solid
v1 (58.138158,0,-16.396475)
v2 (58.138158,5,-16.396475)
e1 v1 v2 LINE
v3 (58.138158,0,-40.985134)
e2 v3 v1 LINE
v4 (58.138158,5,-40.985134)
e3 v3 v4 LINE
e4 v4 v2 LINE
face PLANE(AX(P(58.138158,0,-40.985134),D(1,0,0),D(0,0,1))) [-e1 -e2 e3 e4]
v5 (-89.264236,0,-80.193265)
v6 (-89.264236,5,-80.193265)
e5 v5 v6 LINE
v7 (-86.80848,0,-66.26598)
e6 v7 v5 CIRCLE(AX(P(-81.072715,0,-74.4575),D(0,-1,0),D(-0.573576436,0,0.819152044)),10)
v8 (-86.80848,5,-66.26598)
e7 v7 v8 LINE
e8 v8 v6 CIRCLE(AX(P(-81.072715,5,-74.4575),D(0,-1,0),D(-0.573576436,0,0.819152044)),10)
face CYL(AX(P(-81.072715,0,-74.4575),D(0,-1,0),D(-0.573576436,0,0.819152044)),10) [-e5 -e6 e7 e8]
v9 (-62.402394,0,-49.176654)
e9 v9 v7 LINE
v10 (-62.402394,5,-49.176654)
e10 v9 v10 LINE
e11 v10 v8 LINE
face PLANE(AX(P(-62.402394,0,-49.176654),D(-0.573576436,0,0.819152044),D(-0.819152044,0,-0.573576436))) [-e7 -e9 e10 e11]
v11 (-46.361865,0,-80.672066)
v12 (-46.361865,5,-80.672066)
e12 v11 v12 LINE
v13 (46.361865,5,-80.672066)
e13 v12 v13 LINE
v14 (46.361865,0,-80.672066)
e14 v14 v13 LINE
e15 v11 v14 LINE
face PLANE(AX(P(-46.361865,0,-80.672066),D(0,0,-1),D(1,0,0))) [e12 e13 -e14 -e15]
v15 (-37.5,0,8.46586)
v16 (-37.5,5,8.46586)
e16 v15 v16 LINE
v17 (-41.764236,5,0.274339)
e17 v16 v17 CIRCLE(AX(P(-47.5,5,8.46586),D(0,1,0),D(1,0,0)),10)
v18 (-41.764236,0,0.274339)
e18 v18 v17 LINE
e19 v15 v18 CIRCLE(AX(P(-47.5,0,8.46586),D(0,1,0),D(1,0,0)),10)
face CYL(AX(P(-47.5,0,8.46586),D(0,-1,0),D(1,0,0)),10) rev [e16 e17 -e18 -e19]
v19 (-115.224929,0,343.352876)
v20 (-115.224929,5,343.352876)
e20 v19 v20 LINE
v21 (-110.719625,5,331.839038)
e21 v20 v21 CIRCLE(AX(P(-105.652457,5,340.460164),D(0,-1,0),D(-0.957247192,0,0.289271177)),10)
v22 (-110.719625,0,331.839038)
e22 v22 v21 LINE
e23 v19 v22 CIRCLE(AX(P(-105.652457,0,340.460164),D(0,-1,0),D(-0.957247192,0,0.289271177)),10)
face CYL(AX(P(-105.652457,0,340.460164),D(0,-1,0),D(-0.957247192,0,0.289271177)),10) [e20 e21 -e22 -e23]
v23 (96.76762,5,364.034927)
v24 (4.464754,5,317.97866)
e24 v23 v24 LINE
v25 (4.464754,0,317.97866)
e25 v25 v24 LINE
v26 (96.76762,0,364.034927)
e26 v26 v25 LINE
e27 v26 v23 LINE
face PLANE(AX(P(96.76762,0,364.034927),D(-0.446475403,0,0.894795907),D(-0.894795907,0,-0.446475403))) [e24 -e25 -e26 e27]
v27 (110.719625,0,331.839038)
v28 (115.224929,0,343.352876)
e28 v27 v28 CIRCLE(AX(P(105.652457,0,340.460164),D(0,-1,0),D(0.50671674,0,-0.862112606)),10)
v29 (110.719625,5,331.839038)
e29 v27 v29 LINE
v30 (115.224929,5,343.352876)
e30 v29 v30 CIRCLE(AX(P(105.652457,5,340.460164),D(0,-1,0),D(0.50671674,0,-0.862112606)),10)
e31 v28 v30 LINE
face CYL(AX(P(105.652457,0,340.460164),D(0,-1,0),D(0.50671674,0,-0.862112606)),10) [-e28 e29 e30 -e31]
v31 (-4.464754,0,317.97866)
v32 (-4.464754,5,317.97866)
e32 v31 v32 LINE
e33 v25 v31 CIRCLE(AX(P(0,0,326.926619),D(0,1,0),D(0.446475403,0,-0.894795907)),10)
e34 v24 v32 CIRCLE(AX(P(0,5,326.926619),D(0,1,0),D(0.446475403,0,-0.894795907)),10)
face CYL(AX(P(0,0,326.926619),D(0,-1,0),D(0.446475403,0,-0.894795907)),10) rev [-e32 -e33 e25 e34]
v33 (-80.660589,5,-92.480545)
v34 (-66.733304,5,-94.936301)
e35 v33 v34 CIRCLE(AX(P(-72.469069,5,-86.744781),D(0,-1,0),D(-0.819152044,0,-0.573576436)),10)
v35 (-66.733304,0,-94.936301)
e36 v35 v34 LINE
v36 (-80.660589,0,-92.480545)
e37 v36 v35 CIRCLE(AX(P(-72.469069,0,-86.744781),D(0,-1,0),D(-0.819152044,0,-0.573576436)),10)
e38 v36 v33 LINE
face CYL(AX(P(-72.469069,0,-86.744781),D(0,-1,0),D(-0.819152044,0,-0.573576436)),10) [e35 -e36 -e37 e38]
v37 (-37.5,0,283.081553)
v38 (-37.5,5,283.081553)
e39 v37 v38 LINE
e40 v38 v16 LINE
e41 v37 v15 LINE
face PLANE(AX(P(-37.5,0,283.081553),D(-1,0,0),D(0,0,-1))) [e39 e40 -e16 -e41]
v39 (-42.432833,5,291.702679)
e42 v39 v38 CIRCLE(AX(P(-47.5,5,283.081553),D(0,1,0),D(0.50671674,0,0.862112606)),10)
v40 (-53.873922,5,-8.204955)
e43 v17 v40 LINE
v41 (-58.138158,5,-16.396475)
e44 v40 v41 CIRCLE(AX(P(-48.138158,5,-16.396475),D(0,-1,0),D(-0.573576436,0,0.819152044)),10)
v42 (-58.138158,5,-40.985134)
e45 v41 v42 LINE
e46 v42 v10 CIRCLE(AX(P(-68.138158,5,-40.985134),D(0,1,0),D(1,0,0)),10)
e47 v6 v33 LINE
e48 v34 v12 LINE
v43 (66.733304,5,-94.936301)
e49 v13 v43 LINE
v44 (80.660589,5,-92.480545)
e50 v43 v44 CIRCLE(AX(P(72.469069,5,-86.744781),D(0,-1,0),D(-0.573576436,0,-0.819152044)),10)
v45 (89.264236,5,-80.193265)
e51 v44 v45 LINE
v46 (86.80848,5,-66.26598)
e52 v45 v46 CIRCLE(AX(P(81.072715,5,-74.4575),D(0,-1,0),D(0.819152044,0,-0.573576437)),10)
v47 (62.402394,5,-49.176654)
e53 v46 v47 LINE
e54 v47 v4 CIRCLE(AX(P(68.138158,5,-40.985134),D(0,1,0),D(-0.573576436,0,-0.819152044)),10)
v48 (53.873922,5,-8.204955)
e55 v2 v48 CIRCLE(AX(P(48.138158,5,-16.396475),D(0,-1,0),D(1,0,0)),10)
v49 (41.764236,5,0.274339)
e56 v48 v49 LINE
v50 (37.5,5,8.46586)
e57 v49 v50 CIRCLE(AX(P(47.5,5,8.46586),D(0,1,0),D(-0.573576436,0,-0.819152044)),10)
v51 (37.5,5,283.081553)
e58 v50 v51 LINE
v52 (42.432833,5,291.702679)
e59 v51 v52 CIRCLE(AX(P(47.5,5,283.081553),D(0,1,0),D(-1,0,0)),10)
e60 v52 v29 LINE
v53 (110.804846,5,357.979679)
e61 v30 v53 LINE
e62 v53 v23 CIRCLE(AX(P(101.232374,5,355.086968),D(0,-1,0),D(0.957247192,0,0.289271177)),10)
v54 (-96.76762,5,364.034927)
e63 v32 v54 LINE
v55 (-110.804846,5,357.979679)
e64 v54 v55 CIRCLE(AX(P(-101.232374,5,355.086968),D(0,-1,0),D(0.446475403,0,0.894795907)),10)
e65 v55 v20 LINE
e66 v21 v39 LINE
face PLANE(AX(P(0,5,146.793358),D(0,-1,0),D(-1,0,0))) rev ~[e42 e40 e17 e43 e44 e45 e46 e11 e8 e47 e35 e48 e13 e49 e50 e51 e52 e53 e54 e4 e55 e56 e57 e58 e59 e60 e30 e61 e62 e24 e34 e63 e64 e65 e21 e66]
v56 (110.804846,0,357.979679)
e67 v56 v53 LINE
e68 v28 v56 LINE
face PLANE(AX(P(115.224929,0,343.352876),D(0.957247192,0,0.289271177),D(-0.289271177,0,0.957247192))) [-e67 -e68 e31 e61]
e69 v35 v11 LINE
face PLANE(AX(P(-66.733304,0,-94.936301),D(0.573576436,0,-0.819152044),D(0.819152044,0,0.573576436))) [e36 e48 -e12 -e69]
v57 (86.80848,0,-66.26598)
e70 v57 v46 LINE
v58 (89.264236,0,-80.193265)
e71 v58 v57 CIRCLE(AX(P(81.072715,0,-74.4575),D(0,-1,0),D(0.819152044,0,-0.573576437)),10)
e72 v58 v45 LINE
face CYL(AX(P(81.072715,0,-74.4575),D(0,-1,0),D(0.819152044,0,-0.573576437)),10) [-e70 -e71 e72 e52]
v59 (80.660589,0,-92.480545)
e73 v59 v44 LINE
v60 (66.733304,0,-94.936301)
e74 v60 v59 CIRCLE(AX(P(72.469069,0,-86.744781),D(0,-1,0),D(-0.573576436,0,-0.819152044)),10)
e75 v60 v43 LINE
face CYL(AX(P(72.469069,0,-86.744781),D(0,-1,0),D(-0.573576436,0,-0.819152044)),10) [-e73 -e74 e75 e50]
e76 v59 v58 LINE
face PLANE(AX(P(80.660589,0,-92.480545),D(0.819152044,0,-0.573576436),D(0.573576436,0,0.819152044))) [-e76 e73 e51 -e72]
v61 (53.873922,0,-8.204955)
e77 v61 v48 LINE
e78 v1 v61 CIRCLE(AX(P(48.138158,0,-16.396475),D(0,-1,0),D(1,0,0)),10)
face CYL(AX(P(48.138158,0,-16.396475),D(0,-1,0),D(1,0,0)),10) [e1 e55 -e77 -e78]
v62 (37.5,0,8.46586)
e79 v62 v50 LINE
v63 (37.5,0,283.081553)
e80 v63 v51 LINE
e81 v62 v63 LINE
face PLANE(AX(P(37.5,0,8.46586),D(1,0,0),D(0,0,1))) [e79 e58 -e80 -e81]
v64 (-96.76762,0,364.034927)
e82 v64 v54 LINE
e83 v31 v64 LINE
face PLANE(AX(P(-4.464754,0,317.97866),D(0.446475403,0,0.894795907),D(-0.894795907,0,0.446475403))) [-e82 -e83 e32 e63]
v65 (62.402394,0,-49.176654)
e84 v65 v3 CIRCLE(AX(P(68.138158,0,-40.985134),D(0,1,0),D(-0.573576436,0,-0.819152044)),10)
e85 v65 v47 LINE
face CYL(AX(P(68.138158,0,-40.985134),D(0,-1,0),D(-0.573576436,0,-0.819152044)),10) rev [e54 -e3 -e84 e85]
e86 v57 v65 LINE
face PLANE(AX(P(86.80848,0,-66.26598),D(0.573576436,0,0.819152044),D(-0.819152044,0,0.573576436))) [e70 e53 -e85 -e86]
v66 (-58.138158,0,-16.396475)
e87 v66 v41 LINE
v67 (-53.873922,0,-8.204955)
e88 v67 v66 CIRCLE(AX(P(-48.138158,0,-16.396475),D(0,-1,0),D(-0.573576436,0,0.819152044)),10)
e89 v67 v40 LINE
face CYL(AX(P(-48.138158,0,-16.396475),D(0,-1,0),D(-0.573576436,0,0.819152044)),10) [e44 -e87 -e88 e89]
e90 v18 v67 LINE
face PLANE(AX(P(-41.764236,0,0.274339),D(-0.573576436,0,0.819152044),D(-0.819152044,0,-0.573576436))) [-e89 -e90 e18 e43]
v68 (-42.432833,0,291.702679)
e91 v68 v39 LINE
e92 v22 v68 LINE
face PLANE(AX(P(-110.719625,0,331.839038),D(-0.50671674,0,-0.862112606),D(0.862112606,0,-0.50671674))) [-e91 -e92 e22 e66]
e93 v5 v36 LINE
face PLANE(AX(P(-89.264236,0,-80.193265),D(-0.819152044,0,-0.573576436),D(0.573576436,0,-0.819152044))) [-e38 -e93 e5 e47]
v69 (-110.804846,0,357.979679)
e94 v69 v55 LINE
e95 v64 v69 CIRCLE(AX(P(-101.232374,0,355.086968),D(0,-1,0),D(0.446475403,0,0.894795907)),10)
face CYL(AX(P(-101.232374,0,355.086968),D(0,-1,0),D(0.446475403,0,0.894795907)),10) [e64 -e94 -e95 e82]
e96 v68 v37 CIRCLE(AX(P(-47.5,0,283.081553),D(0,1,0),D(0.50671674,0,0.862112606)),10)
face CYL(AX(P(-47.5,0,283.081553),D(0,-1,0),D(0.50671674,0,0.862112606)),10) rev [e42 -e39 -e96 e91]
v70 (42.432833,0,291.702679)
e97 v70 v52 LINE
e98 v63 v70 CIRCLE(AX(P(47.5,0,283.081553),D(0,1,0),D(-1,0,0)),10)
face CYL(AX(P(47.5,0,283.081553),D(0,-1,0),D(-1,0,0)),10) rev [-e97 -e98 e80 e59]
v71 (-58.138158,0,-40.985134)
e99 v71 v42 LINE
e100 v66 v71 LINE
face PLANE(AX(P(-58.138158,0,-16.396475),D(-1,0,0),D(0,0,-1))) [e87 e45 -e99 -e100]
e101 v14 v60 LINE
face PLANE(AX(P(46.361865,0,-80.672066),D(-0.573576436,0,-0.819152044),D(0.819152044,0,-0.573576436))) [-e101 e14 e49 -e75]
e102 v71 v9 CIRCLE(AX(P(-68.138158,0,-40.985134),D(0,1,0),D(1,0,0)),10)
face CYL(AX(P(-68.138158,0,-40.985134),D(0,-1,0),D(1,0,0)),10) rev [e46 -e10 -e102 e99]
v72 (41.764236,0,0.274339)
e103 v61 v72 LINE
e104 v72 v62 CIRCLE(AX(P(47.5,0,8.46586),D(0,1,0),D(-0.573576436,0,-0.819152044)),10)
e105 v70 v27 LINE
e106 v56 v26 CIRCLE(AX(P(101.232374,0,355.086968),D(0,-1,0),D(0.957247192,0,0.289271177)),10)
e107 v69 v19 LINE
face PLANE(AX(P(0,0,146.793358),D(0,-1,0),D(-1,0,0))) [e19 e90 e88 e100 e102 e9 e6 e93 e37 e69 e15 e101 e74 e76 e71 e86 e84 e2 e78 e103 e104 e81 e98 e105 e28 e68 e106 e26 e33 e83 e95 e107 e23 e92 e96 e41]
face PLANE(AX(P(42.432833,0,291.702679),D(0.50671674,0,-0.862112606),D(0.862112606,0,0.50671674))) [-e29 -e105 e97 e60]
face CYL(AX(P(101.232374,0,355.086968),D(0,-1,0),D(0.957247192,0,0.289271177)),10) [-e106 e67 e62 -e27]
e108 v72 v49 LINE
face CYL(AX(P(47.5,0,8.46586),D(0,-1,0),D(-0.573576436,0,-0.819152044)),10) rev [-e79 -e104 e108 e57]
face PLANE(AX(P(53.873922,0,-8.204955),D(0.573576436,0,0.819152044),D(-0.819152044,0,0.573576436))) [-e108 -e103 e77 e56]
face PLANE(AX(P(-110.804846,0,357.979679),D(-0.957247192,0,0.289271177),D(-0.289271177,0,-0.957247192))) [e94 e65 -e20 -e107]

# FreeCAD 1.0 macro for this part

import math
import FreeCAD as App
import Part
import Sketcher
Q = App.Units.Quantity

doc = App.newDocument("Part")
params = doc.addObject("Spreadsheet::Sheet", "Params")
for row, (alias, value) in enumerate([
    ("sketch1_radius", "10 mm"),
    ("sketch1_length", "15 mm"),
    ("pad1_length", "5 mm"),
], start=1):
    params.set(f"A{row}", alias)
    params.set(f"B{row}", "=" + value)
    params.setAlias(f"B{row}", alias)

body = doc.addObject("PartDesign::Body", "Body")

sketch1 = body.newObject("Sketcher::SketchObject", "Sketch")
sketch1.AttachmentSupport = (doc.getObject("XZ_Plane"), [""])
sketch1.MapMode = "FlatFace"
sketch1.addGeometry(Part.LineSegment(App.Vector(46, -81, 0), App.Vector(-46, -81, 0)), False)
sketch1.addGeometry(Part.LineSegment(App.Vector(-46, -81, 0), App.Vector(-67, -95, 0)), False)
sketch1.addGeometry(Part.ArcOfCircle(Part.Circle(App.Vector(-72, -87, 0), App.Vector(0, 0, 1), 10), math.radians(-145), math.radians(-55)), False)
sketch1.addGeometry(Part.LineSegment(App.Vector(-81, -92, 0), App.Vector(-89, -80, 0)), False)
sketch1.addGeometry(Part.ArcOfCircle(Part.Circle(App.Vector(-81, -74, 0), App.Vector(0, 0, 1), 10), math.radians(125), math.radians(215)), False)
sketch1.addGeometry(Part.LineSegment(App.Vector(-87, -66, 0), App.Vector(-62, -49, 0)), False)
sketch1.addGeometry(Part.ArcOfCircle(Part.Circle(App.Vector(-68, -41, 0), App.Vector(0, 0, 1), 10), math.radians(-55), math.radians(0)), False)
sketch1.addGeometry(Part.LineSegment(App.Vector(-58, -41, 0), App.Vector(-58, -16, 0)), False)
sketch1.addGeometry(Part.ArcOfCircle(Part.Circle(App.Vector(-48, -16, 0), App.Vector(0, 0, 1), 10), math.radians(125), math.radians(180)), False)
sketch1.addGeometry(Part.LineSegment(App.Vector(-54, -8, 0), App.Vector(-42, 0, 0)), False)
sketch1.addGeometry(Part.ArcOfCircle(Part.Circle(App.Vector(-48, 8, 0), App.Vector(0, 0, 1), 10), math.radians(-55), math.radians(0)), False)
sketch1.addGeometry(Part.LineSegment(App.Vector(-38, 8, 0), App.Vector(-38, 283, 0)), False)
sketch1.addGeometry(Part.ArcOfCircle(Part.Circle(App.Vector(-47, 283, 0), App.Vector(0, 0, 1), 10), math.radians(0), math.radians(60)), False)
sketch1.addGeometry(Part.LineSegment(App.Vector(-42, 292, 0), App.Vector(-111, 332, 0)), False)
sketch1.addGeometry(Part.ArcOfCircle(Part.Circle(App.Vector(-106, 340, 0), App.Vector(0, 0, 1), 10), math.radians(163), math.radians(240)), False)
sketch1.addGeometry(Part.LineSegment(App.Vector(-115, 343, 0), App.Vector(-111, 358, 0)), False)
sketch1.addGeometry(Part.ArcOfCircle(Part.Circle(App.Vector(-101, 355, 0), App.Vector(0, 0, 1), 10), math.radians(63), math.radians(163)), False)
sketch1.addGeometry(Part.LineSegment(App.Vector(-97, 364, 0), App.Vector(-4, 318, 0)), False)
sketch1.addGeometry(Part.ArcOfCircle(Part.Circle(App.Vector(0, 327, 0), App.Vector(0, 0, 1), 10), math.radians(-117), math.radians(-63)), False)
sketch1.addGeometry(Part.LineSegment(App.Vector(4, 318, 0), App.Vector(97, 364, 0)), False)
sketch1.addGeometry(Part.ArcOfCircle(Part.Circle(App.Vector(101, 355, 0), App.Vector(0, 0, 1), 10), math.radians(17), math.radians(117)), False)
sketch1.addGeometry(Part.LineSegment(App.Vector(111, 358, 0), App.Vector(115, 343, 0)), False)
sketch1.addGeometry(Part.ArcOfCircle(Part.Circle(App.Vector(106, 340, 0), App.Vector(0, 0, 1), 10), math.radians(-60), math.radians(17)), False)
sketch1.addGeometry(Part.LineSegment(App.Vector(111, 332, 0), App.Vector(42, 292, 0)), False)
sketch1.addGeometry(Part.ArcOfCircle(Part.Circle(App.Vector(47, 283, 0), App.Vector(0, 0, 1), 10), math.radians(120), math.radians(180)), False)
sketch1.addGeometry(Part.LineSegment(App.Vector(38, 283, 0), App.Vector(38, 8, 0)), False)
sketch1.addGeometry(Part.ArcOfCircle(Part.Circle(App.Vector(48, 8, 0), App.Vector(0, 0, 1), 10), math.radians(180), math.radians(235)), False)
sketch1.addGeometry(Part.LineSegment(App.Vector(42, 0, 0), App.Vector(54, -8, 0)), False)
sketch1.addGeometry(Part.ArcOfCircle(Part.Circle(App.Vector(48, -16, 0), App.Vector(0, 0, 1), 10), math.radians(0), math.radians(55)), False)
sketch1.addGeometry(Part.LineSegment(App.Vector(58, -16, 0), App.Vector(58, -41, 0)), False)
sketch1.addGeometry(Part.ArcOfCircle(Part.Circle(App.Vector(68, -41, 0), App.Vector(0, 0, 1), 10), math.radians(180), math.radians(235)), False)
sketch1.addGeometry(Part.LineSegment(App.Vector(62, -49, 0), App.Vector(87, -66, 0)), False)
sketch1.addGeometry(Part.ArcOfCircle(Part.Circle(App.Vector(81, -74, 0), App.Vector(0, 0, 1), 10), math.radians(-35), math.radians(55)), False)
sketch1.addGeometry(Part.LineSegment(App.Vector(89, -80, 0), App.Vector(81, -92, 0)), False)
sketch1.addGeometry(Part.ArcOfCircle(Part.Circle(App.Vector(72, -87, 0), App.Vector(0, 0, 1), 10), math.radians(-125), math.radians(-35)), False)
sketch1.addGeometry(Part.LineSegment(App.Vector(67, -95, 0), App.Vector(46, -81, 0)), False)
sketch1.addConstraint(Sketcher.Constraint("Coincident", 0, 2, 1, 1))
sketch1.addConstraint(Sketcher.Constraint("Tangent", 1, 2, 2, 2))
sketch1.addConstraint(Sketcher.Constraint("Tangent", 2, 1, 3, 1))
sketch1.addConstraint(Sketcher.Constraint("Tangent", 3, 2, 4, 2))
sketch1.addConstraint(Sketcher.Constraint("Tangent", 4, 1, 5, 1))
sketch1.addConstraint(Sketcher.Constraint("Tangent", 5, 2, 6, 1))
sketch1.addConstraint(Sketcher.Constraint("Tangent", 6, 2, 7, 1))
sketch1.addConstraint(Sketcher.Constraint("Tangent", 7, 2, 8, 2))
sketch1.addConstraint(Sketcher.Constraint("Tangent", 8, 1, 9, 1))
sketch1.addConstraint(Sketcher.Constraint("Tangent", 9, 2, 10, 1))
sketch1.addConstraint(Sketcher.Constraint("Tangent", 10, 2, 11, 1))
sketch1.addConstraint(Sketcher.Constraint("Tangent", 11, 2, 12, 1))
sketch1.addConstraint(Sketcher.Constraint("Tangent", 12, 2, 13, 1))
sketch1.addConstraint(Sketcher.Constraint("Tangent", 13, 2, 14, 2))
sketch1.addConstraint(Sketcher.Constraint("Tangent", 14, 1, 15, 1))
sketch1.addConstraint(Sketcher.Constraint("Tangent", 15, 2, 16, 2))
sketch1.addConstraint(Sketcher.Constraint("Tangent", 16, 1, 17, 1))
sketch1.addConstraint(Sketcher.Constraint("Tangent", 17, 2, 18, 1))
sketch1.addConstraint(Sketcher.Constraint("Tangent", 18, 2, 19, 1))
sketch1.addConstraint(Sketcher.Constraint("Tangent", 19, 2, 20, 2))
sketch1.addConstraint(Sketcher.Constraint("Tangent", 20, 1, 21, 1))
sketch1.addConstraint(Sketcher.Constraint("Tangent", 21, 2, 22, 2))
sketch1.addConstraint(Sketcher.Constraint("Tangent", 22, 1, 23, 1))
sketch1.addConstraint(Sketcher.Constraint("Tangent", 23, 2, 24, 1))
sketch1.addConstraint(Sketcher.Constraint("Tangent", 24, 2, 25, 1))
sketch1.addConstraint(Sketcher.Constraint("Tangent", 25, 2, 26, 1))
sketch1.addConstraint(Sketcher.Constraint("Tangent", 26, 2, 27, 1))
sketch1.addConstraint(Sketcher.Constraint("Tangent", 27, 2, 28, 2))
sketch1.addConstraint(Sketcher.Constraint("Tangent", 28, 1, 29, 1))
sketch1.addConstraint(Sketcher.Constraint("Tangent", 29, 2, 30, 1))
sketch1.addConstraint(Sketcher.Constraint("Tangent", 30, 2, 31, 1))
sketch1.addConstraint(Sketcher.Constraint("Tangent", 31, 2, 32, 2))
sketch1.addConstraint(Sketcher.Constraint("Tangent", 32, 1, 33, 1))
sketch1.addConstraint(Sketcher.Constraint("Tangent", 33, 2, 34, 2))
sketch1.addConstraint(Sketcher.Constraint("Tangent", 34, 1, 35, 1))
sketch1.addConstraint(Sketcher.Constraint("Coincident", 35, 2, 0, 1))
sketch1.addConstraint(Sketcher.Constraint("Horizontal", 0))
sketch1.addConstraint(Sketcher.Constraint("Vertical", 7))
sketch1.addConstraint(Sketcher.Constraint("Vertical", 11))
sketch1.addConstraint(Sketcher.Constraint("Vertical", 25))
sketch1.addConstraint(Sketcher.Constraint("Vertical", 29))
sketch1.addConstraint(Sketcher.Constraint("Equal", 2, 4))
sketch1.addConstraint(Sketcher.Constraint("Equal", 4, 6))
sketch1.addConstraint(Sketcher.Constraint("Equal", 6, 8))
sketch1.addConstraint(Sketcher.Constraint("Equal", 8, 10))
sketch1.addConstraint(Sketcher.Constraint("Equal", 10, 12))
sketch1.addConstraint(Sketcher.Constraint("Equal", 12, 14))
sketch1.addConstraint(Sketcher.Constraint("Equal", 14, 16))
sketch1.addConstraint(Sketcher.Constraint("Equal", 16, 18))
sketch1.addConstraint(Sketcher.Constraint("Equal", 18, 20))
sketch1.addConstraint(Sketcher.Constraint("Equal", 20, 22))
sketch1.addConstraint(Sketcher.Constraint("Equal", 22, 24))
sketch1.addConstraint(Sketcher.Constraint("Equal", 24, 26))
sketch1.addConstraint(Sketcher.Constraint("Equal", 26, 28))
sketch1.addConstraint(Sketcher.Constraint("Equal", 28, 30))
sketch1.addConstraint(Sketcher.Constraint("Equal", 30, 32))
sketch1.addConstraint(Sketcher.Constraint("Equal", 32, 34))
sketch1.addConstraint(Sketcher.Constraint("Symmetric", 16, 3, 20, 3, -2))
sketch1.addConstraint(Sketcher.Constraint("Symmetric", 14, 3, 22, 3, -2))
sketch1.addConstraint(Sketcher.Constraint("Symmetric", 12, 3, 24, 3, -2))
sketch1.addConstraint(Sketcher.Constraint("Symmetric", 8, 3, 28, 3, -2))
sketch1.addConstraint(Sketcher.Constraint("Symmetric", 4, 3, 32, 3, -2))
sketch1.addConstraint(Sketcher.Constraint("Symmetric", 2, 3, 34, 3, -2))
sketch1.addConstraint(Sketcher.Constraint("PointOnObject", 18, 3, -2))
sketch1.addConstraint(Sketcher.Constraint("Perpendicular", 1, 3))
sketch1.addConstraint(Sketcher.Constraint("Perpendicular", 3, 5))
sketch1.addConstraint(Sketcher.Constraint("Parallel", 5, 9))
sketch1.addConstraint(Sketcher.Constraint("Parallel", 27, 31))
sketch1.addConstraint(Sketcher.Constraint("Perpendicular", 31, 33))
sketch1.addConstraint(Sketcher.Constraint("Perpendicular", 33, 35))
sketch1.addConstraint(Sketcher.Constraint("Radius", 2, Q("10 mm")))
sketch1.addConstraint(Sketcher.Constraint("Angle", 1, Q("-145 deg")))
sketch1.addConstraint(Sketcher.Constraint("Distance", 3, Q("15 mm")))
sketch1.addConstraint(Sketcher.Constraint("DistanceX", 12, 3, 24, 3, Q("95 mm")))
sketch1.addConstraint(Sketcher.Constraint("DistanceY", 12, 2, 15, 2, Q("66.277 mm")))
sketch1.addConstraint(Sketcher.Constraint("DistanceX", 0, 2, 0, 1, Q("92.723729 mm")))
sketch1.addConstraint(Sketcher.Constraint("DistanceY", 7, 1, 7, 2, Q("24.588659 mm")))
sketch1.addConstraint(Sketcher.Constraint("DistanceY", 4, 3, -1, 1, Q("74.4575 mm")))
sketch1.addConstraint(Sketcher.Constraint("DistanceX", 14, 3, 8, 3, Q("57.514299 mm")))
sketch1.addConstraint(Sketcher.Constraint("DistanceY", 6, 3, 14, 3, Q("381.445298 mm")))
sketch1.addConstraint(Sketcher.Constraint("DistanceY", 6, 3, 16, 3, Q("396.072102 mm")))
sketch1.addConstraint(Sketcher.Constraint("DistanceY", 0, 2, 3, 2, Q("0.478801 mm")))
sketch1.addConstraint(Sketcher.Constraint("Distance", 5, Q("29.794329 mm")))
sketch1.addConstraint(Sketcher.Constraint("Distance", 13, Q("79.208669 mm")))
sketch1.addConstraint(Sketcher.Constraint("DistanceY", -1, 1, 18, 3, Q("326.926619 mm")))
sketch1.setExpression("Constraints[70]", "Params.sketch1_radius")
sketch1.setExpression("Constraints[72]", "Params.sketch1_length")
pad1 = body.newObject("PartDesign::Pad", "Pad")
pad1.Profile = sketch1
pad1.setExpression("Length", "Params.pad1_length")
pad1.Reversed = True

doc.recompute()
